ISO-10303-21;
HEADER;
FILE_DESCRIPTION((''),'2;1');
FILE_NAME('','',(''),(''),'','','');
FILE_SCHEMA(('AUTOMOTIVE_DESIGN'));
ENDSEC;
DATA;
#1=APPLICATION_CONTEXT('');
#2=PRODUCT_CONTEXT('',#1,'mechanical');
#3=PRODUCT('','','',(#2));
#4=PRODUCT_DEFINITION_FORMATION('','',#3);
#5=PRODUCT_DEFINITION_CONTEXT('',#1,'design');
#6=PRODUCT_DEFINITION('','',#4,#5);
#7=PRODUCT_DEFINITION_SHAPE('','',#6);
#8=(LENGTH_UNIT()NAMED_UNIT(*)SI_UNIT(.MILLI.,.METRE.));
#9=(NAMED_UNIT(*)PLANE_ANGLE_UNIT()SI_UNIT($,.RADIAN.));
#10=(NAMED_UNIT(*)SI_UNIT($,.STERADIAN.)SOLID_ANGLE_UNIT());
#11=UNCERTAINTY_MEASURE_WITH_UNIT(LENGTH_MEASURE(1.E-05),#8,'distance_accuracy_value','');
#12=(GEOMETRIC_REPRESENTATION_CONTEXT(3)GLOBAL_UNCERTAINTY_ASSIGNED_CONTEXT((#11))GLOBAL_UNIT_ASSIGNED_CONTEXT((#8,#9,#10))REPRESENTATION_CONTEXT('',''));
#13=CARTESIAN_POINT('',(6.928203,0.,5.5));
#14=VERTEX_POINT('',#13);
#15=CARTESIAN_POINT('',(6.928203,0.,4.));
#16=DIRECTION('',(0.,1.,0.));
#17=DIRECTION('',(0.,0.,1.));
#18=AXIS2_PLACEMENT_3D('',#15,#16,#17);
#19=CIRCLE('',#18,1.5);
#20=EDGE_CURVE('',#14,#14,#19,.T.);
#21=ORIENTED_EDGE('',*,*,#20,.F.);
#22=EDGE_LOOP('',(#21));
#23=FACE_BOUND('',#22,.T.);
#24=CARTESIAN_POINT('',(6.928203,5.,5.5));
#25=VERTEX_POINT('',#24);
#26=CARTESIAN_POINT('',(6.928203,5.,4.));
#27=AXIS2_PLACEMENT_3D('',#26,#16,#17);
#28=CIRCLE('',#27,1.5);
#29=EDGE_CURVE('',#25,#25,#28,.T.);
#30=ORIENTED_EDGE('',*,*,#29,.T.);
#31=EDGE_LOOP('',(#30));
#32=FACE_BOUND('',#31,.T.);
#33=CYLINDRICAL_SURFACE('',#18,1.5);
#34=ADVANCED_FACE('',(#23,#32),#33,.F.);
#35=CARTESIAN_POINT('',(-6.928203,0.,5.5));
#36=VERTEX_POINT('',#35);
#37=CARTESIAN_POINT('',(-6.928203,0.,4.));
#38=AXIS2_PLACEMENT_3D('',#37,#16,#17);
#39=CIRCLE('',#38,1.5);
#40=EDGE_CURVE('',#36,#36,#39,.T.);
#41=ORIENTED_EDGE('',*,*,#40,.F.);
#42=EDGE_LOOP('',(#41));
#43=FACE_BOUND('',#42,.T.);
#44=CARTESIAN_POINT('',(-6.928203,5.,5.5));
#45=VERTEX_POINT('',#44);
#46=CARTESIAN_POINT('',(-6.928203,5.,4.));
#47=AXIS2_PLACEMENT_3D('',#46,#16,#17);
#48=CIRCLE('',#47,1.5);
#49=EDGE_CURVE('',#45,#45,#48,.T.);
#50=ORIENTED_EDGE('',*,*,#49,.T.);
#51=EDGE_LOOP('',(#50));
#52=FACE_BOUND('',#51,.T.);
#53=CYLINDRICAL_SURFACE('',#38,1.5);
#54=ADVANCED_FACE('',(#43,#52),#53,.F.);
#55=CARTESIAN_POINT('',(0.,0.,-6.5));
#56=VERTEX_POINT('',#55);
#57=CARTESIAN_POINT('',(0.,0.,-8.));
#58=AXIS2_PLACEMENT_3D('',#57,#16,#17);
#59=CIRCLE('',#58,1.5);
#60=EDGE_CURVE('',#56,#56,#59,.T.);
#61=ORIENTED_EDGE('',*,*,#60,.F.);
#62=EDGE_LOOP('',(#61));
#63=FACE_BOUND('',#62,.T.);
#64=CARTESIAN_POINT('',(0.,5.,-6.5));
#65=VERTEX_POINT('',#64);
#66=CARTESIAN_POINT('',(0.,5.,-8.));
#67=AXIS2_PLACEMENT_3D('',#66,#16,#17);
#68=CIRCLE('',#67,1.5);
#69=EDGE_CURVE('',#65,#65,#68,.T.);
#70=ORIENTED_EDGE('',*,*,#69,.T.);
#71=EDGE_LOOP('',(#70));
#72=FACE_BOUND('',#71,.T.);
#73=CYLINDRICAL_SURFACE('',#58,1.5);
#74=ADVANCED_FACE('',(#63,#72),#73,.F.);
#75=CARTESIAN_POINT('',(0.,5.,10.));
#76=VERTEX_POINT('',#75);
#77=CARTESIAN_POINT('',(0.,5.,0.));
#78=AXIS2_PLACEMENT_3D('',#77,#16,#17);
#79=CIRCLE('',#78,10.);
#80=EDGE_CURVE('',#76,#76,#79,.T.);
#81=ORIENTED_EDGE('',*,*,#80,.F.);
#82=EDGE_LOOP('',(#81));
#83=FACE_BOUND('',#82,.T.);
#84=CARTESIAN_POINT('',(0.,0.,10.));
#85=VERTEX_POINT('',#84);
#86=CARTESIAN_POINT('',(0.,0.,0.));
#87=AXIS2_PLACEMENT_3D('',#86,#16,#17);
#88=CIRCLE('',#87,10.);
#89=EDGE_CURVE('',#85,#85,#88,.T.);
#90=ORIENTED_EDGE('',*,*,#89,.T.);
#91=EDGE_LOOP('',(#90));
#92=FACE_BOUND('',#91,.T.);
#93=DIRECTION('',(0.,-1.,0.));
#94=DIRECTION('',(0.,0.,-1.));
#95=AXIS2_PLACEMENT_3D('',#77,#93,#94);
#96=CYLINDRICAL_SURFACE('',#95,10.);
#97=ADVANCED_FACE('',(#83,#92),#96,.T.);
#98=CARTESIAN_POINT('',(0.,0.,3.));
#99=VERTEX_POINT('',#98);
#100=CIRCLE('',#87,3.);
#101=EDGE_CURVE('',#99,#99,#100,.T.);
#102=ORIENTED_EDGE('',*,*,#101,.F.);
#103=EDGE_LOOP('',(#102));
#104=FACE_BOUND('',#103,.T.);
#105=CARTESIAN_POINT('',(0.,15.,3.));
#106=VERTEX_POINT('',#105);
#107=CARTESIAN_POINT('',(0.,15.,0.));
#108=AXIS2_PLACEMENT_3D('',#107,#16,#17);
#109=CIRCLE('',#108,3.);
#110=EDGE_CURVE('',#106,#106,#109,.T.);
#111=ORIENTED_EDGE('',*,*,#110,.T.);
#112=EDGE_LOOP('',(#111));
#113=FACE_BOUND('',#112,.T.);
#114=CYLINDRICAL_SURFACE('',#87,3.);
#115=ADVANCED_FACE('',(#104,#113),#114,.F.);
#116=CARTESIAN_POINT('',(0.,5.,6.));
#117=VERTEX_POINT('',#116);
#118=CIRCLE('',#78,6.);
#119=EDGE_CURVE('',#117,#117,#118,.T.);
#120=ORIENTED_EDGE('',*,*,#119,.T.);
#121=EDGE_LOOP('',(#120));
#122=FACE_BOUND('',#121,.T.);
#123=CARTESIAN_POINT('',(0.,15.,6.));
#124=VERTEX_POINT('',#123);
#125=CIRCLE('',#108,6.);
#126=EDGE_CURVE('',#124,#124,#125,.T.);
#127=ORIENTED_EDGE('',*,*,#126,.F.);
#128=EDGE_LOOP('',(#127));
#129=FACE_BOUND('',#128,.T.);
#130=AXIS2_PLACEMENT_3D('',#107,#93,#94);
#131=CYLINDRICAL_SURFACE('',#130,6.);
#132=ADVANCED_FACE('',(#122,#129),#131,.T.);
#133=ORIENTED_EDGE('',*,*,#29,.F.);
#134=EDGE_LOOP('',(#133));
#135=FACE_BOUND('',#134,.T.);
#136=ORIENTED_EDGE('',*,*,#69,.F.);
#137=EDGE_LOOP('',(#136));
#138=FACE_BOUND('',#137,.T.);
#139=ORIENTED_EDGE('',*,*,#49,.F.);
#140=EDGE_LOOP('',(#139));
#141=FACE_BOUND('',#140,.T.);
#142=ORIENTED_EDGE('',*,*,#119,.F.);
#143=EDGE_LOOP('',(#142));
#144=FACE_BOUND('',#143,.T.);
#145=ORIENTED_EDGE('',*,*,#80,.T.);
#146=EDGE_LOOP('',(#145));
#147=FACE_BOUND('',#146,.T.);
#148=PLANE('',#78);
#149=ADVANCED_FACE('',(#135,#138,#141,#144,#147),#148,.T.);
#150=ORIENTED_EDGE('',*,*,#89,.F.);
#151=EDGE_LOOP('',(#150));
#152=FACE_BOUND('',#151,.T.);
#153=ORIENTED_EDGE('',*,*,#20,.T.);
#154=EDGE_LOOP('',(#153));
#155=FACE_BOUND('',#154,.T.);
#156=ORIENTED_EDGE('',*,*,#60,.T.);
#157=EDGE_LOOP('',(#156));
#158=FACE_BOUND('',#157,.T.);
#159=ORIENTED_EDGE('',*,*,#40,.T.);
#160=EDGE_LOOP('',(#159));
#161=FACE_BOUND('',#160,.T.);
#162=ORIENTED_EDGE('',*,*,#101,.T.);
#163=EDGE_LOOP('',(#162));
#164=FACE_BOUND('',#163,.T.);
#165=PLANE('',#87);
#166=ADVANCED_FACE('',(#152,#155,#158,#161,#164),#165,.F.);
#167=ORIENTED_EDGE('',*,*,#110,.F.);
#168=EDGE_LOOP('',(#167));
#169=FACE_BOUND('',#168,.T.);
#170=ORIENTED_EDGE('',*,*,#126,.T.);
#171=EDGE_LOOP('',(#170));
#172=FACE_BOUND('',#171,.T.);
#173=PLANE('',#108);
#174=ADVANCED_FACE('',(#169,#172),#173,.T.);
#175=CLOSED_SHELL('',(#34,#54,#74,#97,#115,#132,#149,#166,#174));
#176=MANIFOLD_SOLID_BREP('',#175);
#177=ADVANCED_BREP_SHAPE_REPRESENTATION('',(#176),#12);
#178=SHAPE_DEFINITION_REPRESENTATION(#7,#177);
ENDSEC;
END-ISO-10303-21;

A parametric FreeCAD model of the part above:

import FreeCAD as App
import Part
import Sketcher

V = App.Vector
Q = App.Units.Quantity

doc = App.newDocument("Part")
params = doc.addObject("Spreadsheet::Sheet", "Params")
for row, (alias, value) in enumerate([
    ("sketch1_diameter", "20 mm"),
    ("pad1_length", "5 mm"),
    ("sketch2_diameter", "12 mm"),
    ("pad2_length", "10 mm"),
    ("sketch3_diameter", "6 mm"),
    ("sketch4_diameter", "3 mm"),
], start=1):
    params.set(f"A{row}", alias)
    params.set(f"B{row}", "=" + value)
    params.setAlias(f"B{row}", alias)

body = doc.addObject("PartDesign::Body", "Body")

# Sketch on XZ plane
sketch1 = body.newObject("Sketcher::SketchObject", "Sketch")
sketch1.AttachmentSupport = (doc.getObject("XZ_Plane"), [""])
sketch1.MapMode = "FlatFace"
sketch1.addGeometry(Part.Circle(V(0, 0, 0), V(0, 0, 1), 10), False)
sketch1.addConstraint([
    Sketcher.Constraint("Coincident", 0, 3, -1, 1),
    Sketcher.Constraint("Diameter", 0, Q("20 mm")),
])
sketch1.setExpression("Constraints[1]", "Params.sketch1_diameter")
pad1 = body.newObject("PartDesign::Pad", "Pad")
pad1.Profile = sketch1
pad1.setExpression("Length", "Params.pad1_length")
pad1.Reversed = True

# Sketch on XZ plane
sketch2 = body.newObject("Sketcher::SketchObject", "Sketch001")
sketch2.AttachmentSupport = (doc.getObject("XZ_Plane"), [""])
sketch2.MapMode = "FlatFace"
sketch2.AttachmentOffset = App.Placement(V(0, 0, -5), App.Rotation())
sketch2.addGeometry(Part.Circle(V(0, 0, 0), V(0, 0, 1), 6), False)
sketch2.addConstraint([
    Sketcher.Constraint("Coincident", 0, 3, -1, 1),
    Sketcher.Constraint("Diameter", 0, Q("12 mm")),
])
sketch2.setExpression("Constraints[1]", "Params.sketch2_diameter")
pad2 = body.newObject("PartDesign::Pad", "Pad001")
pad2.Profile = sketch2
pad2.setExpression("Length", "Params.pad2_length")
pad2.Reversed = True

# Sketch on XZ plane
sketch3 = body.newObject("Sketcher::SketchObject", "Sketch002")
sketch3.AttachmentSupport = (doc.getObject("XZ_Plane"), [""])
sketch3.MapMode = "FlatFace"
sketch3.AttachmentOffset = App.Placement(V(0, 0, -15), App.Rotation())
sketch3.addGeometry(Part.Circle(V(0, 0, 0), V(0, 0, 1), 3), False)
sketch3.addConstraint([
    Sketcher.Constraint("Coincident", 0, 3, -1, 1),
    Sketcher.Constraint("Diameter", 0, Q("6 mm")),
])
sketch3.setExpression("Constraints[1]", "Params.sketch3_diameter")
pocket1 = body.newObject("PartDesign::Pocket", "Pocket")
pocket1.Profile = sketch3
pocket1.Type = "ThroughAll"
pocket1.Reversed = True

# Sketch on XZ plane
sketch4 = body.newObject("Sketcher::SketchObject", "Sketch003")
sketch4.AttachmentSupport = (doc.getObject("XZ_Plane"), [""])
sketch4.MapMode = "FlatFace"
sketch4.AttachmentOffset = App.Placement(V(0, 0, -5), App.Rotation())
sketch4.addGeometry([
    Part.Circle(V(0, -8, 0), V(0, 0, 1), 1.5),
    Part.Circle(V(6.928203, 4, 0), V(0, 0, 1), 1.5),
    Part.Circle(V(-6.928203, 4, 0), V(0, 0, 1), 1.5),
], False)
sketch4.addConstraint([
    Sketcher.Constraint("Equal", 0, 1),
    Sketcher.Constraint("Equal", 1, 2),
    Sketcher.Constraint("Symmetric", 1, 3, 2, 3, -2),
    Sketcher.Constraint("PointOnObject", 0, 3, -2),
    Sketcher.Constraint("Diameter", 0, Q("3 mm")),
    Sketcher.Constraint("DistanceY", 0, 3, -1, 1, Q("8 mm")),
    Sketcher.Constraint("DistanceY", -1, 1, 1, 3, Q("4 mm")),
    Sketcher.Constraint("DistanceX", -1, 1, 1, 3, Q("6.928203 mm")),
])
sketch4.setExpression("Constraints[4]", "Params.sketch4_diameter")
pocket2 = body.newObject("PartDesign::Pocket", "Pocket001")
pocket2.Profile = sketch4
pocket2.Type = "ThroughAll"
pocket2.Reversed = True

doc.recompute()
